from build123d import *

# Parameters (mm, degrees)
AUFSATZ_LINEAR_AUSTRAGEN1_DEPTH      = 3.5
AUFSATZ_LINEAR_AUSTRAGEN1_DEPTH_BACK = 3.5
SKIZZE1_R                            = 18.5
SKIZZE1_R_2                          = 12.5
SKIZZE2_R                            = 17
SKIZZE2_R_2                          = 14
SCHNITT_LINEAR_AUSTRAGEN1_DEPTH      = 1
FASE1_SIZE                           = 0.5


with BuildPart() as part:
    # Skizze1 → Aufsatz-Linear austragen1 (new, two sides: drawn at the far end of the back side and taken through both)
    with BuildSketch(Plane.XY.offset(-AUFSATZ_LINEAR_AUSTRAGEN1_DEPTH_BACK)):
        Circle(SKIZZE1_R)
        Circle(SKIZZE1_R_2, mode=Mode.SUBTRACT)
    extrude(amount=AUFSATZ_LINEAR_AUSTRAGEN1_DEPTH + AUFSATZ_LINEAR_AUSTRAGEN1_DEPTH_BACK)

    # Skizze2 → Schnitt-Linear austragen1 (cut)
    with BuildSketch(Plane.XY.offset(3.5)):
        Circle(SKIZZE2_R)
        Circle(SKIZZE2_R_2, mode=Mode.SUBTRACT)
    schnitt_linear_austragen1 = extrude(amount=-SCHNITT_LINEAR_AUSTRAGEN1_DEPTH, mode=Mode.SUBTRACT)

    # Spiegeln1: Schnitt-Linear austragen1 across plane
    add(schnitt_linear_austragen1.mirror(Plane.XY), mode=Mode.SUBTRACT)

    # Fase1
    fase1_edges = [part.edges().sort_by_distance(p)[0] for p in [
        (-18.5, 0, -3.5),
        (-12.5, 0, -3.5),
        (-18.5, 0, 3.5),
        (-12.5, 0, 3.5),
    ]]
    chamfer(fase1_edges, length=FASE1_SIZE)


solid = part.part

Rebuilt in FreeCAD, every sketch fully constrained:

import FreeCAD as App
import Part
import Sketcher


def edges_at(feature, points):
    """Names of the edges that pass closest to the given points."""
    edges = feature.Shape.Edges
    near = lambda p: min(range(len(edges)), key=lambda i: edges[i].distToShape(Part.Vertex(*p))[0])
    return sorted({f"Edge{near(p) + 1}" for p in points})

doc = App.newDocument("Part")
body = doc.addObject("PartDesign::Body", "Body")

# Sketch on XY plane
sketch1 = body.newObject("Sketcher::SketchObject", "Sketch")
sketch1.AttachmentSupport = (doc.getObject("XY_Plane"), [""])
sketch1.MapMode = "FlatFace"
sketch1.addGeometry([
    Part.Circle(App.Vector(0, 0, 0), App.Vector(0, 0, 1), 18),
    Part.Circle(App.Vector(0, 0, 0), App.Vector(0, 0, 1), 12),
], False)
sketch1.addConstraint([
    Sketcher.Constraint("Coincident", 0, 3, -1, 1),
    Sketcher.Constraint("Coincident", 1, 3, -1, 1),
    Sketcher.Constraint("Diameter", 0, 37.0),
    Sketcher.Constraint("Diameter", 1, 25.0),
])
pad1 = body.newObject("PartDesign::Pad", "Pad")
pad1.Profile = sketch1
pad1.Type = "TwoLengths"
pad1.Length = 3.5
pad1.Length2 = 3.5

# Sketch on XY plane
sketch2 = body.newObject("Sketcher::SketchObject", "Sketch001")
sketch2.AttachmentSupport = (doc.getObject("XY_Plane"), [""])
sketch2.MapMode = "FlatFace"
sketch2.AttachmentOffset = App.Placement(App.Vector(0, 0, 3.5), App.Rotation())
sketch2.addGeometry([
    Part.Circle(App.Vector(0, 0, 0), App.Vector(0, 0, 1), 17),
    Part.Circle(App.Vector(0, 0, 0), App.Vector(0, 0, 1), 14),
], False)
sketch2.addConstraint([
    Sketcher.Constraint("Coincident", 0, 3, -1, 1),
    Sketcher.Constraint("Coincident", 1, 3, -1, 1),
    Sketcher.Constraint("Diameter", 0, 34.0),
    Sketcher.Constraint("Diameter", 1, 28.0),
])
pocket1 = body.newObject("PartDesign::Pocket", "Pocket")
pocket1.Profile = sketch2
pocket1.Length = 1
doc.recompute()

mirrored = body.newObject("PartDesign::Mirrored", "Mirrored")
mirrored.Originals = [pocket1]
mirrored.MirrorPlane = (doc.getObject("XY_Plane"), [""])
body.Tip = mirrored
doc.recompute()

chamfer = body.newObject("PartDesign::Chamfer", "Chamfer")
chamfer.Base = (mirrored, edges_at(mirrored, [
    (-18.5, 0, -3.5),
    (-12.5, 0, -3.5),
    (-18.5, 0, 3.5),
    (-12.5, 0, 3.5),
]))
chamfer.Size = 0.5

doc.recompute()
